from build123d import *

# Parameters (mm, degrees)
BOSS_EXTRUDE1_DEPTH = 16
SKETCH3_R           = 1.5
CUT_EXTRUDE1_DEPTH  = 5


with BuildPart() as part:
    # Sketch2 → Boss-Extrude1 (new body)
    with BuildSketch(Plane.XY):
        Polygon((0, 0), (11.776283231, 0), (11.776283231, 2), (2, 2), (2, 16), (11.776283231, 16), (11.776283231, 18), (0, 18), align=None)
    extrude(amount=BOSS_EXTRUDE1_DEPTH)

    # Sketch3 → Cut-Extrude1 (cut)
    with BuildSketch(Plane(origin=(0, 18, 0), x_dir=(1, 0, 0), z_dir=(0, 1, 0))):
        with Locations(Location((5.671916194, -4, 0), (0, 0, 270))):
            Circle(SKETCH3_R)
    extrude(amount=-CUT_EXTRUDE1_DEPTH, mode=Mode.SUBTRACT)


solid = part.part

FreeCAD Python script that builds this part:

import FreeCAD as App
import Part
import Sketcher
Q = App.Units.Quantity


def add_polygon(sketch, points):
    """Adds a closed chain of lines whose ends are joined by coincident constraints."""
    first, n = sketch.GeometryCount, len(points)
    for a, b in zip(points, points[1:] + points[:1]):
        sketch.addGeometry(Part.LineSegment(App.Vector(*a, 0), App.Vector(*b, 0)), False)
    for i in range(n):
        sketch.addConstraint(Sketcher.Constraint("Coincident", first + i, 2, first + (i + 1) % n, 1))

doc = App.newDocument("Part")
params = doc.addObject("Spreadsheet::Sheet", "Params")
for row, (alias, value) in enumerate([
    ("sketch1_height", "2 mm"),
    ("sketch1_height2", "14 mm"),
    ("pad1_length", "16 mm"),
    ("sketch2_diameter", "3 mm"),
    ("pocket1_length", "5 mm"),
], start=1):
    params.set(f"A{row}", alias)
    params.set(f"B{row}", "=" + value)
    params.setAlias(f"B{row}", alias)

body = doc.addObject("PartDesign::Body", "Body")

# Sketch on XY plane
sketch1 = body.newObject("Sketcher::SketchObject", "Sketch")
sketch1.AttachmentSupport = (doc.getObject("XY_Plane"), [""])
sketch1.MapMode = "FlatFace"
add_polygon(sketch1, [(0, 0), (11.8, 0), (11.8, 2), (2, 2), (2, 16), (11.8, 16), (11.8, 18), (0, 18)])  # lines 0-7
sketch1.addConstraint([
    Sketcher.Constraint("Horizontal", 0),
    Sketcher.Constraint("Vertical", 1),
    Sketcher.Constraint("Horizontal", 2),
    Sketcher.Constraint("Vertical", 3),
    Sketcher.Constraint("Horizontal", 4),
    Sketcher.Constraint("Vertical", 5),
    Sketcher.Constraint("Horizontal", 6),
    Sketcher.Constraint("Vertical", 7),
    Sketcher.Constraint("Coincident", 7, 2, -1, 1),
    Sketcher.Constraint("Vertical", 1, 2, 4, 2),
    Sketcher.Constraint("Equal", 1, 5),
    Sketcher.Constraint("DistanceY", 1, 1, 1, 2, Q("2 mm")),
    Sketcher.Constraint("DistanceY", 3, 1, 3, 2, Q("14 mm")),
    Sketcher.Constraint("DistanceX", -1, 1, 2, 2, Q("2 mm")),
    Sketcher.Constraint("DistanceX", 0, 1, 0, 2, Q("11.776283 mm")),
])
sketch1.setExpression("Constraints[19]", "Params.sketch1_height")
sketch1.setExpression("Constraints[20]", "Params.sketch1_height2")
pad1 = body.newObject("PartDesign::Pad", "Pad")
pad1.Profile = sketch1
pad1.setExpression("Length", "Params.pad1_length")

# Sketch on XZ plane
sketch2 = body.newObject("Sketcher::SketchObject", "Sketch001")
sketch2.AttachmentSupport = (doc.getObject("XZ_Plane"), [""])
sketch2.MapMode = "FlatFace"
sketch2.AttachmentOffset = App.Placement(App.Vector(0, 0, -18), App.Rotation())
sketch2.addGeometry(Part.Circle(App.Vector(5.7, 4, 0), App.Vector(0, 0, 1), 1.5), False)
sketch2.addConstraint([
    Sketcher.Constraint("Diameter", 0, Q("3 mm")),
    Sketcher.Constraint("DistanceY", -1, 1, 0, 3, Q("4 mm")),
    Sketcher.Constraint("DistanceX", -1, 1, 0, 3, Q("5.671916 mm")),
])
sketch2.setExpression("Constraints[0]", "Params.sketch2_diameter")
pocket1 = body.newObject("PartDesign::Pocket", "Pocket")
pocket1.Profile = sketch2
pocket1.setExpression("Length", "Params.pocket1_length")
pocket1.Reversed = True

doc.recompute()
